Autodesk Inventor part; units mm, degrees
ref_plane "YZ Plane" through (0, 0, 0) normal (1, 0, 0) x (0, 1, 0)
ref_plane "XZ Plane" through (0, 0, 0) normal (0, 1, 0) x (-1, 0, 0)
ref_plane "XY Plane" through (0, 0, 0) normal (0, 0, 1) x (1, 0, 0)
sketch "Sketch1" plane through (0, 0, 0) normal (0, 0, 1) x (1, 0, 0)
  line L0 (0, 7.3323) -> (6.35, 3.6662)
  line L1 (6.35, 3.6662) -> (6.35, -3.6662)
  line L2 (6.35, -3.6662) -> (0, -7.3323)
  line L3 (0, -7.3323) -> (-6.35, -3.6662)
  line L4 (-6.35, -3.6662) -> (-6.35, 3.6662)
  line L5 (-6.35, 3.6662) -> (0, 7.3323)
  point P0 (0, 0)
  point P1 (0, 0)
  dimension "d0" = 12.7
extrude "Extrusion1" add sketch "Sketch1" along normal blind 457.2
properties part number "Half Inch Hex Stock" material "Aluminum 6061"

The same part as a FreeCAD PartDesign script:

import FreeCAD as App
import Part
import Sketcher
Q = App.Units.Quantity

doc = App.newDocument("Part")
body = doc.addObject("PartDesign::Body", "Body")

# Sketch on XY plane
sketch1 = body.newObject("Sketcher::SketchObject", "Sketch")
sketch1.AttachmentSupport = (doc.getObject("XY_Plane"), [""])
sketch1.MapMode = "FlatFace"
sketch1.addGeometry(Part.LineSegment(App.Vector(6, 4, 0), App.Vector(0, 7, 0)), False)
sketch1.addGeometry(Part.LineSegment(App.Vector(0, 7, 0), App.Vector(-6, 4, 0)), False)
sketch1.addGeometry(Part.LineSegment(App.Vector(-6, 4, 0), App.Vector(-6, -4, 0)), False)
sketch1.addGeometry(Part.LineSegment(App.Vector(-6, -4, 0), App.Vector(0, -7, 0)), False)
sketch1.addGeometry(Part.LineSegment(App.Vector(0, -7, 0), App.Vector(6, -4, 0)), False)
sketch1.addGeometry(Part.LineSegment(App.Vector(6, -4, 0), App.Vector(6, 4, 0)), False)
sketch1.addConstraint(Sketcher.Constraint("Coincident", 0, 2, 1, 1))
sketch1.addConstraint(Sketcher.Constraint("Coincident", 1, 2, 2, 1))
sketch1.addConstraint(Sketcher.Constraint("Coincident", 2, 2, 3, 1))
sketch1.addConstraint(Sketcher.Constraint("Coincident", 3, 2, 4, 1))
sketch1.addConstraint(Sketcher.Constraint("Coincident", 4, 2, 5, 1))
sketch1.addConstraint(Sketcher.Constraint("Coincident", 5, 2, 0, 1))
sketch1.addConstraint(Sketcher.Constraint("Vertical", 2))
sketch1.addConstraint(Sketcher.Constraint("Vertical", 5))
sketch1.addConstraint(Sketcher.Constraint("Symmetric", 0, 2, 3, 2, -1, 1))
sketch1.addConstraint(Sketcher.Constraint("Symmetric", 1, 2, 4, 2, -1, 1))
sketch1.addConstraint(Sketcher.Constraint("PointOnObject", 0, 2, -2))
sketch1.addConstraint(Sketcher.Constraint("Parallel", 0, 3))
sketch1.addConstraint(Sketcher.Constraint("Horizontal", 2, 2, 4, 2))
sketch1.addConstraint(Sketcher.Constraint("DistanceX", 2, 2, 4, 2, Q("0.5 in")))
sketch1.addConstraint(Sketcher.Constraint("Angle", 0, Q("150.0005 deg")))
sketch1.addConstraint(Sketcher.Constraint("DistanceY", 2, 2, 0, 2, Q("0.433 in")))
pad1 = body.newObject("PartDesign::Pad", "Pad")
pad1.Profile = sketch1
pad1.Length = Q("18 in")

doc.recompute()
